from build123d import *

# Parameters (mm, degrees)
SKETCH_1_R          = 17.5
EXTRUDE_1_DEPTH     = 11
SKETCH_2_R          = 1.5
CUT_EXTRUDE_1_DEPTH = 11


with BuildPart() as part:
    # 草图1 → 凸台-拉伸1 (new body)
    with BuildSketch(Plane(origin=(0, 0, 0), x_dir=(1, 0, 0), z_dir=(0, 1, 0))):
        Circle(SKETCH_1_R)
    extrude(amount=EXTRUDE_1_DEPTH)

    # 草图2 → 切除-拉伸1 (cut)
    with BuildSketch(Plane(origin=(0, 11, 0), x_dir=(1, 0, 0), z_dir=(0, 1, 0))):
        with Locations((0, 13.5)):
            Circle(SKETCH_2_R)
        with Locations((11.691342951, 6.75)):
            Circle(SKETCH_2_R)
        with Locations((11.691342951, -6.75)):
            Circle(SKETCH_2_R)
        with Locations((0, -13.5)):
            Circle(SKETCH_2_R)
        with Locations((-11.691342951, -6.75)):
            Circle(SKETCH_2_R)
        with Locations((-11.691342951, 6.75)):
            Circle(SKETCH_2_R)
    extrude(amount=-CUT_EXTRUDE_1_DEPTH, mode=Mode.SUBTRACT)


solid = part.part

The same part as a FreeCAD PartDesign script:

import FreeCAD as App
import Part
import Sketcher

V = App.Vector

doc = App.newDocument("Part")
params = doc.addObject("Spreadsheet::Sheet", "Params")
for row, (alias, value) in enumerate([
    ("sketch1_diameter", "35 mm"),
    ("pad1_length", "11 mm"),
    ("sketch2_diameter", "3 mm"),
    ("pocket1_length", "11 mm"),
], start=1):
    params.set(f"A{row}", alias)
    params.set(f"B{row}", "=" + value)
    params.setAlias(f"B{row}", alias)

body = doc.addObject("PartDesign::Body", "Body")

# Sketch on XZ plane
sketch1 = doc.addObject("Sketcher::SketchObject", "Sketch")
body.addObject(sketch1)
sketch1.AttachmentSupport = (doc.XZ_Plane, [""])
sketch1.MapMode = "FlatFace"
sketch1.addGeometry(Part.Circle(V(0, 0, 0), V(0, 0, 1), 18), False)
sketch1.addConstraint(Sketcher.Constraint("Coincident", 0, 3, -1, 1))
sketch1.addConstraint(Sketcher.Constraint("Diameter", 0, 35.0))
sketch1.setExpression("Constraints[1]", "Params.sketch1_diameter")
pad1 = doc.addObject("PartDesign::Pad", "Pad")
body.addObject(pad1)
pad1.Profile = sketch1
pad1.setExpression("Length", "Params.pad1_length")
pad1.Reversed = True

# Sketch on XZ plane
sketch2 = doc.addObject("Sketcher::SketchObject", "Sketch001")
body.addObject(sketch2)
sketch2.AttachmentSupport = (doc.XZ_Plane, [""])
sketch2.MapMode = "FlatFace"
sketch2.AttachmentOffset = App.Placement(V(0, 0, -11), App.Rotation())
sketch2.addGeometry(Part.Circle(V(0, -13.5, 0), V(0, 0, 1), 1.5), False)
sketch2.addGeometry(Part.Circle(V(11.7, -6.8, 0), V(0, 0, 1), 1.5), False)
sketch2.addGeometry(Part.Circle(V(11.7, 6.8, 0), V(0, 0, 1), 1.5), False)
sketch2.addGeometry(Part.Circle(V(0, 13.5, 0), V(0, 0, 1), 1.5), False)
sketch2.addGeometry(Part.Circle(V(-11.7, 6.8, 0), V(0, 0, 1), 1.5), False)
sketch2.addGeometry(Part.Circle(V(-11.7, -6.8, 0), V(0, 0, 1), 1.5), False)
sketch2.addConstraint(Sketcher.Constraint("Equal", 0, 1))
sketch2.addConstraint(Sketcher.Constraint("Equal", 1, 2))
sketch2.addConstraint(Sketcher.Constraint("Equal", 2, 3))
sketch2.addConstraint(Sketcher.Constraint("Equal", 3, 4))
sketch2.addConstraint(Sketcher.Constraint("Equal", 4, 5))
sketch2.addConstraint(Sketcher.Constraint("Symmetric", 0, 3, 3, 3, -1, 1))
sketch2.addConstraint(Sketcher.Constraint("Symmetric", 1, 3, 4, 3, -1, 1))
sketch2.addConstraint(Sketcher.Constraint("Symmetric", 2, 3, 5, 3, -1, 1))
sketch2.addConstraint(Sketcher.Constraint("Symmetric", 2, 3, 4, 3, -2))
sketch2.addConstraint(Sketcher.Constraint("PointOnObject", 0, 3, -2))
sketch2.addConstraint(Sketcher.Constraint("Diameter", 0, 3.0))
sketch2.addConstraint(Sketcher.Constraint("DistanceY", 0, 3, 3, 3, 27.0))
sketch2.addConstraint(Sketcher.Constraint("DistanceY", 1, 3, 2, 3, 13.5))
sketch2.addConstraint(Sketcher.Constraint("DistanceX", -1, 1, 1, 3, 11.691343))
sketch2.setExpression("Constraints[10]", "Params.sketch2_diameter")
pocket1 = doc.addObject("PartDesign::Pocket", "Pocket")
body.addObject(pocket1)
pocket1.Profile = sketch2
pocket1.setExpression("Length", "Params.pocket1_length")
pocket1.Reversed = True

doc.recompute()
